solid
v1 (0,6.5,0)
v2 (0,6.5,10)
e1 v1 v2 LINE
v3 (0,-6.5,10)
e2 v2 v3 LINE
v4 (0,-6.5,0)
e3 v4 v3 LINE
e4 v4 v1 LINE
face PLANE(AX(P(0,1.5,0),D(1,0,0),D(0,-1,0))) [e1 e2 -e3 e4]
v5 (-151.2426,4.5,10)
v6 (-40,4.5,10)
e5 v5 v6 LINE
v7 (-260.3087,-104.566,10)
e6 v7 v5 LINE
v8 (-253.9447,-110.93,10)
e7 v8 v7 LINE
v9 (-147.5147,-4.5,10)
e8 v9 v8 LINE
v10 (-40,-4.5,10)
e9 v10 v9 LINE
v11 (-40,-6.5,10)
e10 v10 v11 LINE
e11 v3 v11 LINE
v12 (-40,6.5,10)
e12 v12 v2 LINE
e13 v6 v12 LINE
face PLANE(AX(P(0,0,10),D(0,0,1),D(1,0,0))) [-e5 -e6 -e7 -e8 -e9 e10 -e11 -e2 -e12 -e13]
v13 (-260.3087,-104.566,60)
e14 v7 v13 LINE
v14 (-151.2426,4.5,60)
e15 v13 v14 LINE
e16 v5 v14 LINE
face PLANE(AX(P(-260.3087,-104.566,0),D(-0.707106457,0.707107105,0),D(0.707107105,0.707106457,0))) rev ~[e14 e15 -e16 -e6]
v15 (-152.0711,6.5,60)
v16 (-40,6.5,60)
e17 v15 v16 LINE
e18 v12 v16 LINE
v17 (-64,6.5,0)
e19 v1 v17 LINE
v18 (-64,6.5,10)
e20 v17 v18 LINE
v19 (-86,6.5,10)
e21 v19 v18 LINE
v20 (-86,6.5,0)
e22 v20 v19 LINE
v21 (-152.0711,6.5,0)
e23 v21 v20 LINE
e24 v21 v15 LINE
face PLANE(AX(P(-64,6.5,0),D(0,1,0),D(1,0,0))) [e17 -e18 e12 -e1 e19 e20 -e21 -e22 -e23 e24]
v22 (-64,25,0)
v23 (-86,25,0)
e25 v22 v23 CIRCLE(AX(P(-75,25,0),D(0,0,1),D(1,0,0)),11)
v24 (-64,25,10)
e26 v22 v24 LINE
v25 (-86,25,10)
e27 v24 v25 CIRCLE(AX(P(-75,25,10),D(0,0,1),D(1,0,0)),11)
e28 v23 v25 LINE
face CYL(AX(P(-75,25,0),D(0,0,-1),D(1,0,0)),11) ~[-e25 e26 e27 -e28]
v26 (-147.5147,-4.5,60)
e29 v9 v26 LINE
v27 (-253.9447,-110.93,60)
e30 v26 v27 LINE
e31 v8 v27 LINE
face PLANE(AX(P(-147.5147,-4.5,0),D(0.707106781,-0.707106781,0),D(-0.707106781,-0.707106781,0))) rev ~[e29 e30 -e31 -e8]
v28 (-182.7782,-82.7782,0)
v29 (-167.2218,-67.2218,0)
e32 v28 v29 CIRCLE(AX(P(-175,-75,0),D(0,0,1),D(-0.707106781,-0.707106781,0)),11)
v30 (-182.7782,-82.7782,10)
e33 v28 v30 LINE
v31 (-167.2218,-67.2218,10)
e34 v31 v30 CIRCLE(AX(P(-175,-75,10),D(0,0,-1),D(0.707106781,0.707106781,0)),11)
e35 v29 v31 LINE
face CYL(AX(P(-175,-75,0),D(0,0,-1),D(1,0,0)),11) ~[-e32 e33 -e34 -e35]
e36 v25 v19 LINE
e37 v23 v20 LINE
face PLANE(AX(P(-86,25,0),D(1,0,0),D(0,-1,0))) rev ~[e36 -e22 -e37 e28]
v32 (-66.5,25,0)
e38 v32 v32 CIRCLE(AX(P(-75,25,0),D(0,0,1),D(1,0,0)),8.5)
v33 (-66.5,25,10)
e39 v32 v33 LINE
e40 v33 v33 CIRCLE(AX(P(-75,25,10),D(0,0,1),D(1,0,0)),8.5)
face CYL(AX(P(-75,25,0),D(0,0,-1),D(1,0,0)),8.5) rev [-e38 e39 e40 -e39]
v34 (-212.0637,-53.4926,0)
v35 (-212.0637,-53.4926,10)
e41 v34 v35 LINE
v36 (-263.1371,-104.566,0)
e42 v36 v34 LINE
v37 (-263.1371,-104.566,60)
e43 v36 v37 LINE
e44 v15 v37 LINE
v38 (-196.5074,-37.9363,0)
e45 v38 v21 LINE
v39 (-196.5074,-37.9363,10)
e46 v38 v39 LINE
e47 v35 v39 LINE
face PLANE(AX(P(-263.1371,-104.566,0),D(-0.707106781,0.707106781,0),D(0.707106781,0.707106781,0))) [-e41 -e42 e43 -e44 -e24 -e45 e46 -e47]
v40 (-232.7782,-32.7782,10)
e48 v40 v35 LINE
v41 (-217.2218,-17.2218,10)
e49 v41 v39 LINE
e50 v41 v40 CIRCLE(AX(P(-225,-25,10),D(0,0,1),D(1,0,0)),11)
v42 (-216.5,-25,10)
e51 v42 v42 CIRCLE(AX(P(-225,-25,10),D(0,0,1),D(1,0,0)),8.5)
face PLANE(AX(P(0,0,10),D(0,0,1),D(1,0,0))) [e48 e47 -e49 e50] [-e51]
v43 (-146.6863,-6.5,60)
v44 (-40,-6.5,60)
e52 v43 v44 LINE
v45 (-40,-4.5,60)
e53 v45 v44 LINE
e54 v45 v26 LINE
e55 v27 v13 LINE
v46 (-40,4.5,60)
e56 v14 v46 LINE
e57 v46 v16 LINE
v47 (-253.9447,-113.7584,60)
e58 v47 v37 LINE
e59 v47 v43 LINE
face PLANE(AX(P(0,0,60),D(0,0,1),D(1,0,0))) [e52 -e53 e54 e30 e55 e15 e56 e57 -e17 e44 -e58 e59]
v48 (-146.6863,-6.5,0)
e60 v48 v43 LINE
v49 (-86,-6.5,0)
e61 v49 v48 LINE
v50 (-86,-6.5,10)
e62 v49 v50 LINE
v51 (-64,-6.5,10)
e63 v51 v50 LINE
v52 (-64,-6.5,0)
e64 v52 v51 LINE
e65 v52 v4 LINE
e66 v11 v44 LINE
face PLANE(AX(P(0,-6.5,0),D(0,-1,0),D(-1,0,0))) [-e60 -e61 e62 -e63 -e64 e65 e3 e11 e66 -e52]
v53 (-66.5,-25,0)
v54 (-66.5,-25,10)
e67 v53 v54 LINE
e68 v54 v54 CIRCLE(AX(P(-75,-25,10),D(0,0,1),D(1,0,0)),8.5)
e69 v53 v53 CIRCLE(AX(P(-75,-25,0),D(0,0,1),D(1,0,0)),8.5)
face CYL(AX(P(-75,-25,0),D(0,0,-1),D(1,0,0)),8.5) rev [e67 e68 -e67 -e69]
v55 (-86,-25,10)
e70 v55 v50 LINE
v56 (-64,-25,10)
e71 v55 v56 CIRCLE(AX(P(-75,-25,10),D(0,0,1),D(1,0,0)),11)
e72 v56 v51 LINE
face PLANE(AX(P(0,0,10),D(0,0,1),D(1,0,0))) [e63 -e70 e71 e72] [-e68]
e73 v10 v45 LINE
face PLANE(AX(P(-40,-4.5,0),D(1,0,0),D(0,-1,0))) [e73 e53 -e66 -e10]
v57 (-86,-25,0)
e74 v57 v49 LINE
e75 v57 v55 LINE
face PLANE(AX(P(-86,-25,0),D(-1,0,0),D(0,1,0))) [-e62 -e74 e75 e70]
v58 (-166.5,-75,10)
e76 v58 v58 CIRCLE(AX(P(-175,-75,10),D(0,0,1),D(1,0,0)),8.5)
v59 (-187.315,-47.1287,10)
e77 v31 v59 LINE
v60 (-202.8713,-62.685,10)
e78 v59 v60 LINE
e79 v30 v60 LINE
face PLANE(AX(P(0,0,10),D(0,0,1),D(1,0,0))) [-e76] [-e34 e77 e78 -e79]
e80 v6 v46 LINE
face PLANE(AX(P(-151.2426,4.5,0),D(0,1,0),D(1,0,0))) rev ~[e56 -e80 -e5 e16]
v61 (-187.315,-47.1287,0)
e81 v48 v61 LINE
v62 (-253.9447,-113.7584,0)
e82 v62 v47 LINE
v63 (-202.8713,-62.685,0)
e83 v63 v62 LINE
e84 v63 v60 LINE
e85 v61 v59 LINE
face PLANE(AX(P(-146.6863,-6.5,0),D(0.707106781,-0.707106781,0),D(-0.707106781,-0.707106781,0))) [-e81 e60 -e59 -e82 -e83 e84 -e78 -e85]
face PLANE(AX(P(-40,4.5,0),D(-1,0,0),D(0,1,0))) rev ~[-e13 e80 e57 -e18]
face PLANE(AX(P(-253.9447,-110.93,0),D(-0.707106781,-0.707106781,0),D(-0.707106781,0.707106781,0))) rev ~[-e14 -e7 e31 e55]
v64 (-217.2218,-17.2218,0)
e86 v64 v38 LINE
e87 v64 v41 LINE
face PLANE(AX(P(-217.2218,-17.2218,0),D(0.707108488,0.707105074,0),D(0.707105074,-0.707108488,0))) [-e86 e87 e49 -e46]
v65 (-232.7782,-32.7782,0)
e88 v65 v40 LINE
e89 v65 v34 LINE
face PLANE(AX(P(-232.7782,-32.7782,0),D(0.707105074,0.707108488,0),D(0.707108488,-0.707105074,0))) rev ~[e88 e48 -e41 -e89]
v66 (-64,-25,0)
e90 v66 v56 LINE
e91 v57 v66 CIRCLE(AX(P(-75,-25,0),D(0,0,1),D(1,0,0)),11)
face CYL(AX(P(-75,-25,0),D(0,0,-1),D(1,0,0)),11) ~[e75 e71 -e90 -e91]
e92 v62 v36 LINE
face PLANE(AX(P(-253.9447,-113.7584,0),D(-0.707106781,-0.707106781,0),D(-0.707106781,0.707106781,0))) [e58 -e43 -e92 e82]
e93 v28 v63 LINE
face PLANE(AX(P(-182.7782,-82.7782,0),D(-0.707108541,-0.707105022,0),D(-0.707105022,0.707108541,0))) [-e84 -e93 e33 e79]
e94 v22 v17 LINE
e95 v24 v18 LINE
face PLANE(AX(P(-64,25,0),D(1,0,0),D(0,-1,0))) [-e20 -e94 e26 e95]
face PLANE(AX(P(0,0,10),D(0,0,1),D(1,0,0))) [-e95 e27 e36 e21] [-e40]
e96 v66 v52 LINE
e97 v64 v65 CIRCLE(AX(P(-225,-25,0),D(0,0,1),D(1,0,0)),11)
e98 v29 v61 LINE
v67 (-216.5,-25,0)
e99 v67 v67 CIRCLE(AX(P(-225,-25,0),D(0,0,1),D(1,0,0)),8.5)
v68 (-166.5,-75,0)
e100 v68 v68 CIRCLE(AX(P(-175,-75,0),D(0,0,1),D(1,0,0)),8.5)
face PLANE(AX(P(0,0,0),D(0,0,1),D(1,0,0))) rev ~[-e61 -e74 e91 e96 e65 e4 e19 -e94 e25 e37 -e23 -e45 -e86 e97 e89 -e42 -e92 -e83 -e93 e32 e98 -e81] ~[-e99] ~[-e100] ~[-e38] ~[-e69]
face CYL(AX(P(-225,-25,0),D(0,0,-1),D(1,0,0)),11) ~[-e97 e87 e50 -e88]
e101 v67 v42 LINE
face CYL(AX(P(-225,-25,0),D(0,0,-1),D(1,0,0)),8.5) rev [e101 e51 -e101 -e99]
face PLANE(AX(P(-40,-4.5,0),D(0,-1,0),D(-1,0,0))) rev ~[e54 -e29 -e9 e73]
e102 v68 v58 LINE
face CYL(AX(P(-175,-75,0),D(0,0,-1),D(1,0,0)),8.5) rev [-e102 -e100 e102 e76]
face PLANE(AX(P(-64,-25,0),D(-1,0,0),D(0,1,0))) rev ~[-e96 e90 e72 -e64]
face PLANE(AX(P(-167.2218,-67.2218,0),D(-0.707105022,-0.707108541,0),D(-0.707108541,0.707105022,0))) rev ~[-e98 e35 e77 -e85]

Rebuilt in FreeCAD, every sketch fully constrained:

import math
import FreeCAD as App
import Part
import Sketcher
Q = App.Units.Quantity


def add_polygon(sketch, points):
    """Adds a closed chain of lines whose ends are joined by coincident constraints."""
    first, n = sketch.GeometryCount, len(points)
    for a, b in zip(points, points[1:] + points[:1]):
        sketch.addGeometry(Part.LineSegment(App.Vector(*a, 0), App.Vector(*b, 0)), False)
    for i in range(n):
        sketch.addConstraint(Sketcher.Constraint("Coincident", first + i, 2, first + (i + 1) % n, 1))

doc = App.newDocument("Part")
body = doc.addObject("PartDesign::Body", "Body")

sketch1 = body.newObject("Sketcher::SketchObject", "Sketch")
sketch1.AttachmentSupport = (doc.getObject("XY_Plane"), [""])
sketch1.MapMode = "FlatFace"
add_polygon(sketch1, [(-40, 4.5), (-40, 6.5), (-152.0711, 6.5), (-263.1371, -104.566), (-253.9447, -113.7584), (-146.6863, -6.5), (-40, -6.5), (-40, -4.5), (-147.5147, -4.5), (-253.9447, -110.93), (-260.3087, -104.566), (-151.2426, 4.5)])
sketch1.addConstraint(Sketcher.Constraint("Vertical", 0))
sketch1.addConstraint(Sketcher.Constraint("Horizontal", 1))
sketch1.addConstraint(Sketcher.Constraint("Horizontal", 5))
sketch1.addConstraint(Sketcher.Constraint("Vertical", 6))
sketch1.addConstraint(Sketcher.Constraint("Horizontal", 7))
sketch1.addConstraint(Sketcher.Constraint("Horizontal", 11))
sketch1.addConstraint(Sketcher.Constraint("Symmetric", 0, 2, 5, 2, -1))
sketch1.addConstraint(Sketcher.Constraint("Perpendicular", 2, 3))
sketch1.addConstraint(Sketcher.Constraint("Perpendicular", 3, 4))
sketch1.addConstraint(Sketcher.Constraint("Parallel", 4, 8))
sketch1.addConstraint(Sketcher.Constraint("Perpendicular", 8, 9))
sketch1.addConstraint(Sketcher.Constraint("Perpendicular", 9, 10))
sketch1.addConstraint(Sketcher.Constraint("Horizontal", 2, 2, 9, 2))
sketch1.addConstraint(Sketcher.Constraint("Vertical", 3, 2, 8, 2))
sketch1.addConstraint(Sketcher.Constraint("Equal", 0, 6))
sketch1.addConstraint(Sketcher.Constraint("DistanceX", 0, 2, -1, 1, 40.0))
sketch1.addConstraint(Sketcher.Constraint("DistanceY", 0, 1, 0, 2, 2.0))
sketch1.addConstraint(Sketcher.Constraint("Angle", 2, Q("-135 deg")))
sketch1.addConstraint(Sketcher.Constraint("Distance", 3, 13.0))
sketch1.addConstraint(Sketcher.Constraint("Distance", 9, 9.0))
sketch1.addConstraint(Sketcher.Constraint("DistanceY", 4, 2, 1, 2, 13.0))
sketch1.addConstraint(Sketcher.Constraint("DistanceX", 1, 2, 1, 1, 112.071))
sketch1.addConstraint(Sketcher.Constraint("DistanceY", 8, 2, -1, 1, 110.93))
pad1 = body.newObject("PartDesign::Pad", "Pad")
pad1.Profile = sketch1
pad1.Length = 60

sketch2 = body.newObject("Sketcher::SketchObject", "Sketch001")
sketch2.AttachmentSupport = (doc.getObject("XY_Plane"), [""])
sketch2.MapMode = "FlatFace"
add_polygon(sketch2, [(0, -6.5), (0, 6.5), (-40, 6.5), (-40, 4.5), (-151.2426, 4.5), (-260.3087, -104.566), (-253.9447, -110.93), (-147.5147, -4.5), (-40, -4.5), (-40, -6.5)])
sketch2.addGeometry(Part.LineSegment(App.Vector(-86, 6.5, 0), App.Vector(-64, 6.5, 0)), False)
sketch2.addGeometry(Part.LineSegment(App.Vector(-64, 6.5, 0), App.Vector(-64, 25, 0)), False)
sketch2.addGeometry(Part.ArcOfCircle(Part.Circle(App.Vector(-75, 25, 0), App.Vector(0, 0, 1), 11), math.radians(0), math.radians(180)), False)
sketch2.addGeometry(Part.LineSegment(App.Vector(-86, 25, 0), App.Vector(-86, 6.5, 0)), False)
sketch2.addGeometry(Part.Circle(App.Vector(-75, 25, 0), App.Vector(0, 0, 1), 8.5), False)
sketch2.addGeometry(Part.LineSegment(App.Vector(-64, -25, 0), App.Vector(-64, -6.5, 0)), False)
sketch2.addGeometry(Part.LineSegment(App.Vector(-64, -6.5, 0), App.Vector(-86, -6.5, 0)), False)
sketch2.addGeometry(Part.LineSegment(App.Vector(-86, -6.5, 0), App.Vector(-86, -25, 0)), False)
sketch2.addGeometry(Part.ArcOfCircle(Part.Circle(App.Vector(-75, -25, 0), App.Vector(0, 0, 1), 11), math.radians(180), math.radians(360)), False)
sketch2.addGeometry(Part.Circle(App.Vector(-75, -25, 0), App.Vector(0, 0, 1), 8.5), False)
sketch2.addGeometry(Part.LineSegment(App.Vector(-212.0637, -53.4926, 0), App.Vector(-196.5074, -37.9363, 0)), False)
sketch2.addGeometry(Part.LineSegment(App.Vector(-196.5074, -37.9363, 0), App.Vector(-217.2218, -17.2218, 0)), False)
sketch2.addGeometry(Part.ArcOfCircle(Part.Circle(App.Vector(-225, -25, 0), App.Vector(0, 0, 1), 11), math.radians(45), math.radians(225)), False)
sketch2.addGeometry(Part.LineSegment(App.Vector(-232.7782, -32.7782, 0), App.Vector(-212.0637, -53.4926, 0)), False)
sketch2.addGeometry(Part.Circle(App.Vector(-225, -25, 0), App.Vector(0, 0, 1), 8.5), False)
sketch2.addGeometry(Part.LineSegment(App.Vector(-167.2218, -67.2218, 0), App.Vector(-187.315, -47.1287, 0)), False)
sketch2.addGeometry(Part.LineSegment(App.Vector(-187.315, -47.1287, 0), App.Vector(-202.8713, -62.685, 0)), False)
sketch2.addGeometry(Part.LineSegment(App.Vector(-202.8713, -62.685, 0), App.Vector(-182.7782, -82.7782, 0)), False)
sketch2.addGeometry(Part.ArcOfCircle(Part.Circle(App.Vector(-175, -75, 0), App.Vector(0, 0, 1), 11), math.radians(-135), math.radians(45)), False)
sketch2.addGeometry(Part.Circle(App.Vector(-175, -75, 0), App.Vector(0, 0, 1), 8.5), False)
sketch2.addConstraint(Sketcher.Constraint("Coincident", 10, 2, 11, 1))
sketch2.addConstraint(Sketcher.Constraint("Tangent", 11, 2, 12, 1))
sketch2.addConstraint(Sketcher.Constraint("Tangent", 12, 2, 13, 1))
sketch2.addConstraint(Sketcher.Constraint("Coincident", 13, 2, 10, 1))
sketch2.addConstraint(Sketcher.Constraint("Coincident", 15, 2, 16, 1))
sketch2.addConstraint(Sketcher.Constraint("Coincident", 16, 2, 17, 1))
sketch2.addConstraint(Sketcher.Constraint("Tangent", 17, 2, 18, 1))
sketch2.addConstraint(Sketcher.Constraint("Tangent", 18, 2, 15, 1))
sketch2.addConstraint(Sketcher.Constraint("Coincident", 20, 2, 21, 1))
sketch2.addConstraint(Sketcher.Constraint("Tangent", 21, 2, 22, 1))
sketch2.addConstraint(Sketcher.Constraint("Tangent", 22, 2, 23, 1))
sketch2.addConstraint(Sketcher.Constraint("Coincident", 23, 2, 20, 1))
sketch2.addConstraint(Sketcher.Constraint("Coincident", 25, 2, 26, 1))
sketch2.addConstraint(Sketcher.Constraint("Coincident", 26, 2, 27, 1))
sketch2.addConstraint(Sketcher.Constraint("Tangent", 27, 2, 28, 1))
sketch2.addConstraint(Sketcher.Constraint("Tangent", 28, 2, 25, 1))
sketch2.addConstraint(Sketcher.Constraint("Vertical", 0))
sketch2.addConstraint(Sketcher.Constraint("Horizontal", 1))
sketch2.addConstraint(Sketcher.Constraint("Vertical", 2))
sketch2.addConstraint(Sketcher.Constraint("Horizontal", 3))
sketch2.addConstraint(Sketcher.Constraint("Horizontal", 7))
sketch2.addConstraint(Sketcher.Constraint("Vertical", 8))
sketch2.addConstraint(Sketcher.Constraint("Horizontal", 9))
sketch2.addConstraint(Sketcher.Constraint("Horizontal", 10))
sketch2.addConstraint(Sketcher.Constraint("Vertical", 11))
sketch2.addConstraint(Sketcher.Constraint("Vertical", 13))
sketch2.addConstraint(Sketcher.Constraint("Vertical", 15))
sketch2.addConstraint(Sketcher.Constraint("Horizontal", 16))
sketch2.addConstraint(Sketcher.Constraint("Vertical", 17))
sketch2.addConstraint(Sketcher.Constraint("Coincident", 14, 3, 12, 3))
sketch2.addConstraint(Sketcher.Constraint("Coincident", 19, 3, 18, 3))
sketch2.addConstraint(Sketcher.Constraint("Coincident", 24, 3, 22, 3))
sketch2.addConstraint(Sketcher.Constraint("Coincident", 29, 3, 28, 3))
sketch2.addConstraint(Sketcher.Constraint("Equal", 12, 18))
sketch2.addConstraint(Sketcher.Constraint("Equal", 14, 19))
sketch2.addConstraint(Sketcher.Constraint("Equal", 18, 22))
sketch2.addConstraint(Sketcher.Constraint("Equal", 19, 24))
sketch2.addConstraint(Sketcher.Constraint("Equal", 22, 28))
sketch2.addConstraint(Sketcher.Constraint("Equal", 24, 29))
sketch2.addConstraint(Sketcher.Constraint("Symmetric", 0, 2, 9, 2, -1, 1))
sketch2.addConstraint(Sketcher.Constraint("Symmetric", 12, 3, 18, 3, -1))
sketch2.addConstraint(Sketcher.Constraint("Symmetric", 2, 2, 7, 2, -1))
sketch2.addConstraint(Sketcher.Constraint("Perpendicular", 4, 5))
sketch2.addConstraint(Sketcher.Constraint("Perpendicular", 5, 6))
sketch2.addConstraint(Sketcher.Constraint("Parallel", 6, 20))
sketch2.addConstraint(Sketcher.Constraint("Perpendicular", 20, 21))
sketch2.addConstraint(Sketcher.Constraint("Parallel", 21, 23))
sketch2.addConstraint(Sketcher.Constraint("Parallel", 23, 25))
sketch2.addConstraint(Sketcher.Constraint("Perpendicular", 25, 26))
sketch2.addConstraint(Sketcher.Constraint("Perpendicular", 26, 27))
sketch2.addConstraint(Sketcher.Constraint("Horizontal", 19, 3, 22, 3))
sketch2.addConstraint(Sketcher.Constraint("Horizontal", 1, 2, 10, 2))
sketch2.addConstraint(Sketcher.Constraint("Horizontal", 9, 2, 15, 2))
sketch2.addConstraint(Sketcher.Constraint("Diameter", 14, 17.0))
sketch2.addConstraint(Sketcher.Constraint("Radius", 12, 11.0))
sketch2.addConstraint(Sketcher.Constraint("DistanceX", 1, 2, 1, 1, 40.0))
sketch2.addConstraint(Sketcher.Constraint("DistanceY", 11, 1, 11, 2, 18.5))
sketch2.addConstraint(Sketcher.Constraint("DistanceX", 12, 3, -1, 1, 75.0))
sketch2.addConstraint(Sketcher.Constraint("DistanceY", 28, 3, -1, 1, 75.0))
sketch2.addConstraint(Sketcher.Constraint("DistanceY", 18, 3, 12, 3, 50.0))
sketch2.addConstraint(Sketcher.Constraint("DistanceX", 22, 3, 18, 3, 150.0))
sketch2.addConstraint(Sketcher.Constraint("DistanceX", 22, 3, 28, 3, 50.0))
sketch2.addConstraint(Sketcher.Constraint("DistanceY", 2, 2, 2, 1, 2.0))
sketch2.addConstraint(Sketcher.Constraint("Angle", 4, Q("-135 deg")))
sketch2.addConstraint(Sketcher.Constraint("Distance", 5, 9.0))
sketch2.addConstraint(Sketcher.Constraint("DistanceY", 5, 2, -1, 1, 110.93))
sketch2.addConstraint(Sketcher.Constraint("Distance", 25, 28.416))
sketch2.addConstraint(Sketcher.Constraint("DistanceX", 3, 2, 3, 1, 111.2426))
sketch2.addConstraint(Sketcher.Constraint("DistanceX", 21, 2, 23, 2, 5.158))
pad2 = body.newObject("PartDesign::Pad", "Pad001")
pad2.Profile = sketch2
pad2.Length = 10

doc.recompute()
